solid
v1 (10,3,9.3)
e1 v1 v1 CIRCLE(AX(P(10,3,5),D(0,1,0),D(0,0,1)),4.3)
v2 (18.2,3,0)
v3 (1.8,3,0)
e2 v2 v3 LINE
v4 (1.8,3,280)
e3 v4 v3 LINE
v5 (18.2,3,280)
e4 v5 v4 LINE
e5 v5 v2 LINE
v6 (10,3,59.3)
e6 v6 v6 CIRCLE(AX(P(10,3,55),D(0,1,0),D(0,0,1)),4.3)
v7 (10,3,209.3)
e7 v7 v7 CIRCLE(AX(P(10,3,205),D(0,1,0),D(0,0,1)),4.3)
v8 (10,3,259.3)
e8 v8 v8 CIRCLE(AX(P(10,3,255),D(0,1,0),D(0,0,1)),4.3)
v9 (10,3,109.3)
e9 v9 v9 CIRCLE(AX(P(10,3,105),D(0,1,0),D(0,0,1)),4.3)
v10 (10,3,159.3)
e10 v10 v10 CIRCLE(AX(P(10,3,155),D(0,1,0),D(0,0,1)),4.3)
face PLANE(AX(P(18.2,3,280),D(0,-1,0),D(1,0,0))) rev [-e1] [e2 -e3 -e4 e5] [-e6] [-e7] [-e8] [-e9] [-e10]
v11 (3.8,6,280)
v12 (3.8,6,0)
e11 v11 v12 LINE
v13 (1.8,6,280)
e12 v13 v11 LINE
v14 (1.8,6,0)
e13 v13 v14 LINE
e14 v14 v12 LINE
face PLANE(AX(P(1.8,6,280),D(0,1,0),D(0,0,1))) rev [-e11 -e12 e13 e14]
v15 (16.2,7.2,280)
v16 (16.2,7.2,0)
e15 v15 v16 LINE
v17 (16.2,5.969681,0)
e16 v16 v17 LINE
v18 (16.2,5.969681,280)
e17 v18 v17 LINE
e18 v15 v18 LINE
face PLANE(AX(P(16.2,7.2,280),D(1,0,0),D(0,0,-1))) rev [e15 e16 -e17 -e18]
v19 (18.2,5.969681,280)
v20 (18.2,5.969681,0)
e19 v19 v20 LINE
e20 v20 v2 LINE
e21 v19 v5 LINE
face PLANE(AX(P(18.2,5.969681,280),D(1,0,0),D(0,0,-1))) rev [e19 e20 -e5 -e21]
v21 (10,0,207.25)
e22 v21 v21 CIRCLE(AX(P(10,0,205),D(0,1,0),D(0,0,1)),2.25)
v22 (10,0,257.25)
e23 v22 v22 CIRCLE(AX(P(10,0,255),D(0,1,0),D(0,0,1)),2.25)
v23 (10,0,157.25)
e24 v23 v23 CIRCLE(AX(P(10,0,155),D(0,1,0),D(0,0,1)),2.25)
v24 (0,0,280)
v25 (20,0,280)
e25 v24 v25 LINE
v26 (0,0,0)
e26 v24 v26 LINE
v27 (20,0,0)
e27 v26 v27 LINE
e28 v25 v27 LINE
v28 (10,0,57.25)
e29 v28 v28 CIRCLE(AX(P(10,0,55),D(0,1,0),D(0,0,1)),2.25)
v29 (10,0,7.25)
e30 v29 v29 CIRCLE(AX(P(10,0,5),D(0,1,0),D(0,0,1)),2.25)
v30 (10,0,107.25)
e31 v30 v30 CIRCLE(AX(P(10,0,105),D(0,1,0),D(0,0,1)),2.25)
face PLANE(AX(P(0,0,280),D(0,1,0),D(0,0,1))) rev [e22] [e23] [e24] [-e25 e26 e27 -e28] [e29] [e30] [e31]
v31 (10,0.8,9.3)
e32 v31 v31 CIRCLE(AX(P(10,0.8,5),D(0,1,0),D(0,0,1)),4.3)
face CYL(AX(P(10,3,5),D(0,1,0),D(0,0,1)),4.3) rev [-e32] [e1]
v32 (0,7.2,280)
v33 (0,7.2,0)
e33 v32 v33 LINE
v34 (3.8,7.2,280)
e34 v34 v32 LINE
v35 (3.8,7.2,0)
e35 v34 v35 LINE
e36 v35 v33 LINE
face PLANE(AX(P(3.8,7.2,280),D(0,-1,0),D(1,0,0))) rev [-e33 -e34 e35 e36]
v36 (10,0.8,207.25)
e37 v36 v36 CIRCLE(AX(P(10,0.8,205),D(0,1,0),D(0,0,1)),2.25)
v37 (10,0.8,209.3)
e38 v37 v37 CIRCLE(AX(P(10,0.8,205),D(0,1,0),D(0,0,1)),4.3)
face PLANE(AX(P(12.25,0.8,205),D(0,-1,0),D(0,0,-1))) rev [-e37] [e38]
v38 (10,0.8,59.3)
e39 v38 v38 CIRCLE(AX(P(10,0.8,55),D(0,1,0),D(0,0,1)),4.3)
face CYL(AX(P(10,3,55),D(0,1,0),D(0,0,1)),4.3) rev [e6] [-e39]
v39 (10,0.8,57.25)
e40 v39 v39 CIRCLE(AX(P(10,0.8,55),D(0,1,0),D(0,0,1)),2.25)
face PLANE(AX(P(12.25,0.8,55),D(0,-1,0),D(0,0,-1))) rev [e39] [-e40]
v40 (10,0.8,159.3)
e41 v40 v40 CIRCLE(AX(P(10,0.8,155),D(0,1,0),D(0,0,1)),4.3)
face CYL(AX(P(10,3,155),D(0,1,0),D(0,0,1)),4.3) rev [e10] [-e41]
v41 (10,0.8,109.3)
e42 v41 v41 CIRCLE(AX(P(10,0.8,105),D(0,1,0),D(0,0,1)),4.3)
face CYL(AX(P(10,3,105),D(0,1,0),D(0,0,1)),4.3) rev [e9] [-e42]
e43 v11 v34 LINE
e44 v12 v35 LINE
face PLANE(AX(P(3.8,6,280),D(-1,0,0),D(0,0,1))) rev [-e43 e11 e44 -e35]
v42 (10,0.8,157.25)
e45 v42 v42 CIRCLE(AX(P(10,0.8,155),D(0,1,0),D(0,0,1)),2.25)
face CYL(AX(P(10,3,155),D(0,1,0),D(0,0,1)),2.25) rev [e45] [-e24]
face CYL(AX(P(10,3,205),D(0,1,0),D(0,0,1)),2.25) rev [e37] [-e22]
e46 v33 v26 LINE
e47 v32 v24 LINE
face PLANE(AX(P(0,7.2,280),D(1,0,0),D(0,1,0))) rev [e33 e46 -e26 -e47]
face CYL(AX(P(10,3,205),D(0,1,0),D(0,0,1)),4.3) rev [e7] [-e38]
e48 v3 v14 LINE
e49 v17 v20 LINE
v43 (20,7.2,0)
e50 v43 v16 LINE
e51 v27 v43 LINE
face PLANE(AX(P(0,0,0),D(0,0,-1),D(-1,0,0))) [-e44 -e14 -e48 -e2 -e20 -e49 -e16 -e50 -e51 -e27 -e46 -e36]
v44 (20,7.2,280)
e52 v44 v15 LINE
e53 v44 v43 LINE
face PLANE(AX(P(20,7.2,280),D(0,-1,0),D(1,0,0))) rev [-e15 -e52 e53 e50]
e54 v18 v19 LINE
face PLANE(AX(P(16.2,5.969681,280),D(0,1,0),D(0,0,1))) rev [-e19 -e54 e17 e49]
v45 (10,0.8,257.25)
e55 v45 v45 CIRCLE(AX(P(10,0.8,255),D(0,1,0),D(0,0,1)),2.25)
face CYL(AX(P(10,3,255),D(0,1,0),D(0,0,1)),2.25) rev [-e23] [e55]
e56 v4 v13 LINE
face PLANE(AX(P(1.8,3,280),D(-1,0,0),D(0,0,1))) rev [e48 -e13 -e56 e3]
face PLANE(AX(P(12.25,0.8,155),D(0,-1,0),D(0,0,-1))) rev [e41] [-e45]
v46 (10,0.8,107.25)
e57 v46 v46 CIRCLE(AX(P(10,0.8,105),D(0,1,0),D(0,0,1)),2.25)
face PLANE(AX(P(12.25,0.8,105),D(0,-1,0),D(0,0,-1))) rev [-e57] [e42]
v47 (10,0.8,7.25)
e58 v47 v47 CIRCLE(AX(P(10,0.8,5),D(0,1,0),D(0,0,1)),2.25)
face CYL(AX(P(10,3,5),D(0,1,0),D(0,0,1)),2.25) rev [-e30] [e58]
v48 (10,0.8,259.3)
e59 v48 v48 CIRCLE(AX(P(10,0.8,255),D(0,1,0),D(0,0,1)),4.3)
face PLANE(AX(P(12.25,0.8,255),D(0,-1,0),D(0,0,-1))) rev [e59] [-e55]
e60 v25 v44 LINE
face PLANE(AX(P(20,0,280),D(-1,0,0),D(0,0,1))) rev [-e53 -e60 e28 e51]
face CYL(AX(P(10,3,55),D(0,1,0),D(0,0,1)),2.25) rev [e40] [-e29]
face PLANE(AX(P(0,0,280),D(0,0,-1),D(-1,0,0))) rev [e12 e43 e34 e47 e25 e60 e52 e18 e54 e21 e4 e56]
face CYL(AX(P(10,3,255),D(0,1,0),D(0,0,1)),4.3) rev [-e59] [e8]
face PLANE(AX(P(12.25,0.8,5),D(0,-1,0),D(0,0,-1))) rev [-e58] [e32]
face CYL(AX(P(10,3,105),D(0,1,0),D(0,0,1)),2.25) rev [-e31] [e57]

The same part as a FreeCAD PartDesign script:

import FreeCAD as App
import Part
import Sketcher
from FreeCAD import Vector
Q = App.Units.Quantity

doc = App.newDocument("Part")
body = doc.addObject("PartDesign::Body", "Body")

# Sketch on XY plane
sketch1 = body.newObject("Sketcher::SketchObject", "Sketch")
sketch1.AttachmentSupport = (doc.getObject("XY_Plane"), [""])
sketch1.MapMode = "FlatFace"
sketch1.addGeometry(Part.LineSegment(Vector(0, 0, 0), Vector(20, 0, 0)), False)
sketch1.addGeometry(Part.LineSegment(Vector(20, 0, 0), Vector(20, 7.2, 0)), False)
sketch1.addGeometry(Part.LineSegment(Vector(20, 7.2, 0), Vector(16.2, 7.2, 0)), False)
sketch1.addGeometry(Part.LineSegment(Vector(16.2, 7.2, 0), Vector(16.2, 5.969681, 0)), False)
sketch1.addGeometry(Part.LineSegment(Vector(16.2, 5.969681, 0), Vector(18.2, 5.969681, 0)), False)
sketch1.addGeometry(Part.LineSegment(Vector(18.2, 5.969681, 0), Vector(18.2, 3, 0)), False)
sketch1.addGeometry(Part.LineSegment(Vector(18.2, 3, 0), Vector(1.8, 3, 0)), False)
sketch1.addGeometry(Part.LineSegment(Vector(1.8, 3, 0), Vector(1.8, 6, 0)), False)
sketch1.addGeometry(Part.LineSegment(Vector(1.8, 6, 0), Vector(3.8, 6, 0)), False)
sketch1.addGeometry(Part.LineSegment(Vector(3.8, 6, 0), Vector(3.8, 7.2, 0)), False)
sketch1.addGeometry(Part.LineSegment(Vector(3.8, 7.2, 0), Vector(0, 7.2, 0)), False)
sketch1.addGeometry(Part.LineSegment(Vector(0, 7.2, 0), Vector(0, 0, 0)), False)
sketch1.addConstraint(Sketcher.Constraint("Coincident", 0, 2, 1, 1))
sketch1.addConstraint(Sketcher.Constraint("Coincident", 1, 2, 2, 1))
sketch1.addConstraint(Sketcher.Constraint("Coincident", 2, 2, 3, 1))
sketch1.addConstraint(Sketcher.Constraint("Coincident", 3, 2, 4, 1))
sketch1.addConstraint(Sketcher.Constraint("Coincident", 4, 2, 5, 1))
sketch1.addConstraint(Sketcher.Constraint("Coincident", 5, 2, 6, 1))
sketch1.addConstraint(Sketcher.Constraint("Coincident", 6, 2, 7, 1))
sketch1.addConstraint(Sketcher.Constraint("Coincident", 7, 2, 8, 1))
sketch1.addConstraint(Sketcher.Constraint("Coincident", 8, 2, 9, 1))
sketch1.addConstraint(Sketcher.Constraint("Coincident", 9, 2, 10, 1))
sketch1.addConstraint(Sketcher.Constraint("Coincident", 10, 2, 11, 1))
sketch1.addConstraint(Sketcher.Constraint("Coincident", 11, 2, 0, 1))
sketch1.addConstraint(Sketcher.Constraint("Horizontal", 0))
sketch1.addConstraint(Sketcher.Constraint("Vertical", 1))
sketch1.addConstraint(Sketcher.Constraint("Horizontal", 2))
sketch1.addConstraint(Sketcher.Constraint("Vertical", 3))
sketch1.addConstraint(Sketcher.Constraint("Horizontal", 4))
sketch1.addConstraint(Sketcher.Constraint("Vertical", 5))
sketch1.addConstraint(Sketcher.Constraint("Horizontal", 6))
sketch1.addConstraint(Sketcher.Constraint("Vertical", 7))
sketch1.addConstraint(Sketcher.Constraint("Horizontal", 8))
sketch1.addConstraint(Sketcher.Constraint("Vertical", 9))
sketch1.addConstraint(Sketcher.Constraint("Horizontal", 10))
sketch1.addConstraint(Sketcher.Constraint("Vertical", 11))
sketch1.addConstraint(Sketcher.Constraint("Coincident", 11, 2, -1, 1))
sketch1.addConstraint(Sketcher.Constraint("Horizontal", 2, 2, 9, 2))
sketch1.addConstraint(Sketcher.Constraint("Equal", 4, 8))
sketch1.addConstraint(Sketcher.Constraint("Equal", 2, 10))
sketch1.addConstraint(Sketcher.Constraint("DistanceX", 0, 1, 0, 2, Q("20 mm")))
sketch1.addConstraint(Sketcher.Constraint("DistanceX", 4, 1, 4, 2, Q("2 mm")))
sketch1.addConstraint(Sketcher.Constraint("DistanceY", 7, 1, 7, 2, Q("3 mm")))
sketch1.addConstraint(Sketcher.Constraint("DistanceX", 2, 2, 2, 1, Q("3.8 mm")))
sketch1.addConstraint(Sketcher.Constraint("DistanceY", 1, 1, 1, 2, Q("7.2 mm")))
sketch1.addConstraint(Sketcher.Constraint("DistanceY", 9, 1, 9, 2, Q("1.2 mm")))
sketch1.addConstraint(Sketcher.Constraint("DistanceY", 3, 2, 3, 1, Q("1.230319 mm")))
pad1 = body.newObject("PartDesign::Pad", "Pad")
pad1.Profile = sketch1
pad1.Length = 280

# Sketch on XZ plane
sketch2 = body.newObject("Sketcher::SketchObject", "Sketch001")
sketch2.AttachmentSupport = (doc.getObject("XZ_Plane"), [""])
sketch2.MapMode = "FlatFace"
sketch2.AttachmentOffset = App.Placement(Vector(0, 0, -3), App.Rotation())
sketch2.addGeometry(Part.Circle(Vector(10, 255, 0), Vector(0, 0, 1), 2.25), False)
sketch2.addGeometry(Part.Circle(Vector(10, 205, 0), Vector(0, 0, 1), 2.25), False)
sketch2.addGeometry(Part.Circle(Vector(10, 155, 0), Vector(0, 0, 1), 2.25), False)
sketch2.addGeometry(Part.Circle(Vector(10, 105, 0), Vector(0, 0, 1), 2.25), False)
sketch2.addGeometry(Part.Circle(Vector(10, 55, 0), Vector(0, 0, 1), 2.25), False)
sketch2.addConstraint(Sketcher.Constraint("Equal", 0, 1))
sketch2.addConstraint(Sketcher.Constraint("Equal", 1, 2))
sketch2.addConstraint(Sketcher.Constraint("Equal", 2, 3))
sketch2.addConstraint(Sketcher.Constraint("Equal", 3, 4))
sketch2.addConstraint(Sketcher.Constraint("Vertical", 0, 3, 1, 3))
sketch2.addConstraint(Sketcher.Constraint("Vertical", 1, 3, 2, 3))
sketch2.addConstraint(Sketcher.Constraint("Vertical", 2, 3, 3, 3))
sketch2.addConstraint(Sketcher.Constraint("Vertical", 3, 3, 4, 3))
sketch2.addConstraint(Sketcher.Constraint("Diameter", 0, Q("4.5 mm")))
sketch2.addConstraint(Sketcher.Constraint("DistanceX", -1, 1, 0, 3, Q("10 mm")))
sketch2.addConstraint(Sketcher.Constraint("DistanceY", -1, 1, 0, 3, Q("255 mm")))
sketch2.addConstraint(Sketcher.Constraint("DistanceY", -1, 1, 1, 3, Q("205 mm")))
sketch2.addConstraint(Sketcher.Constraint("DistanceY", -1, 1, 2, 3, Q("155 mm")))
sketch2.addConstraint(Sketcher.Constraint("DistanceY", -1, 1, 3, 3, Q("105 mm")))
sketch2.addConstraint(Sketcher.Constraint("DistanceY", -1, 1, 4, 3, Q("55 mm")))
doc.recompute()
hole = body.newObject("PartDesign::Hole", "Hole")
hole.Profile = sketch2
hole.ThreadType = "None"
hole.Diameter = 4.5
hole.DepthType = "ThroughAll"
hole.HoleCutType = "Counterbore"
hole.HoleCutDiameter = 8.6
hole.HoleCutDepth = 2.2
hole.Reversed = True

# Sketch on XZ plane
sketch3 = body.newObject("Sketcher::SketchObject", "Sketch002")
sketch3.AttachmentSupport = (doc.getObject("XZ_Plane"), [""])
sketch3.MapMode = "FlatFace"
sketch3.AttachmentOffset = App.Placement(Vector(0, 0, -3), App.Rotation())
sketch3.addGeometry(Part.Circle(Vector(10, 5, 0), Vector(0, 0, 1), 2.25), False)
sketch3.addConstraint(Sketcher.Constraint("Diameter", 0, Q("4.5 mm")))
sketch3.addConstraint(Sketcher.Constraint("DistanceX", -1, 1, 0, 3, Q("10 mm")))
sketch3.addConstraint(Sketcher.Constraint("DistanceY", -1, 1, 0, 3, Q("5 mm")))
doc.recompute()
hole2 = body.newObject("PartDesign::Hole", "Hole001")
hole2.Profile = sketch3
hole2.ThreadType = "None"
hole2.Diameter = 4.5
hole2.DepthType = "ThroughAll"
hole2.HoleCutType = "Counterbore"
hole2.HoleCutDiameter = 8.6
hole2.HoleCutDepth = 2.2
hole2.Reversed = True

doc.recompute()
